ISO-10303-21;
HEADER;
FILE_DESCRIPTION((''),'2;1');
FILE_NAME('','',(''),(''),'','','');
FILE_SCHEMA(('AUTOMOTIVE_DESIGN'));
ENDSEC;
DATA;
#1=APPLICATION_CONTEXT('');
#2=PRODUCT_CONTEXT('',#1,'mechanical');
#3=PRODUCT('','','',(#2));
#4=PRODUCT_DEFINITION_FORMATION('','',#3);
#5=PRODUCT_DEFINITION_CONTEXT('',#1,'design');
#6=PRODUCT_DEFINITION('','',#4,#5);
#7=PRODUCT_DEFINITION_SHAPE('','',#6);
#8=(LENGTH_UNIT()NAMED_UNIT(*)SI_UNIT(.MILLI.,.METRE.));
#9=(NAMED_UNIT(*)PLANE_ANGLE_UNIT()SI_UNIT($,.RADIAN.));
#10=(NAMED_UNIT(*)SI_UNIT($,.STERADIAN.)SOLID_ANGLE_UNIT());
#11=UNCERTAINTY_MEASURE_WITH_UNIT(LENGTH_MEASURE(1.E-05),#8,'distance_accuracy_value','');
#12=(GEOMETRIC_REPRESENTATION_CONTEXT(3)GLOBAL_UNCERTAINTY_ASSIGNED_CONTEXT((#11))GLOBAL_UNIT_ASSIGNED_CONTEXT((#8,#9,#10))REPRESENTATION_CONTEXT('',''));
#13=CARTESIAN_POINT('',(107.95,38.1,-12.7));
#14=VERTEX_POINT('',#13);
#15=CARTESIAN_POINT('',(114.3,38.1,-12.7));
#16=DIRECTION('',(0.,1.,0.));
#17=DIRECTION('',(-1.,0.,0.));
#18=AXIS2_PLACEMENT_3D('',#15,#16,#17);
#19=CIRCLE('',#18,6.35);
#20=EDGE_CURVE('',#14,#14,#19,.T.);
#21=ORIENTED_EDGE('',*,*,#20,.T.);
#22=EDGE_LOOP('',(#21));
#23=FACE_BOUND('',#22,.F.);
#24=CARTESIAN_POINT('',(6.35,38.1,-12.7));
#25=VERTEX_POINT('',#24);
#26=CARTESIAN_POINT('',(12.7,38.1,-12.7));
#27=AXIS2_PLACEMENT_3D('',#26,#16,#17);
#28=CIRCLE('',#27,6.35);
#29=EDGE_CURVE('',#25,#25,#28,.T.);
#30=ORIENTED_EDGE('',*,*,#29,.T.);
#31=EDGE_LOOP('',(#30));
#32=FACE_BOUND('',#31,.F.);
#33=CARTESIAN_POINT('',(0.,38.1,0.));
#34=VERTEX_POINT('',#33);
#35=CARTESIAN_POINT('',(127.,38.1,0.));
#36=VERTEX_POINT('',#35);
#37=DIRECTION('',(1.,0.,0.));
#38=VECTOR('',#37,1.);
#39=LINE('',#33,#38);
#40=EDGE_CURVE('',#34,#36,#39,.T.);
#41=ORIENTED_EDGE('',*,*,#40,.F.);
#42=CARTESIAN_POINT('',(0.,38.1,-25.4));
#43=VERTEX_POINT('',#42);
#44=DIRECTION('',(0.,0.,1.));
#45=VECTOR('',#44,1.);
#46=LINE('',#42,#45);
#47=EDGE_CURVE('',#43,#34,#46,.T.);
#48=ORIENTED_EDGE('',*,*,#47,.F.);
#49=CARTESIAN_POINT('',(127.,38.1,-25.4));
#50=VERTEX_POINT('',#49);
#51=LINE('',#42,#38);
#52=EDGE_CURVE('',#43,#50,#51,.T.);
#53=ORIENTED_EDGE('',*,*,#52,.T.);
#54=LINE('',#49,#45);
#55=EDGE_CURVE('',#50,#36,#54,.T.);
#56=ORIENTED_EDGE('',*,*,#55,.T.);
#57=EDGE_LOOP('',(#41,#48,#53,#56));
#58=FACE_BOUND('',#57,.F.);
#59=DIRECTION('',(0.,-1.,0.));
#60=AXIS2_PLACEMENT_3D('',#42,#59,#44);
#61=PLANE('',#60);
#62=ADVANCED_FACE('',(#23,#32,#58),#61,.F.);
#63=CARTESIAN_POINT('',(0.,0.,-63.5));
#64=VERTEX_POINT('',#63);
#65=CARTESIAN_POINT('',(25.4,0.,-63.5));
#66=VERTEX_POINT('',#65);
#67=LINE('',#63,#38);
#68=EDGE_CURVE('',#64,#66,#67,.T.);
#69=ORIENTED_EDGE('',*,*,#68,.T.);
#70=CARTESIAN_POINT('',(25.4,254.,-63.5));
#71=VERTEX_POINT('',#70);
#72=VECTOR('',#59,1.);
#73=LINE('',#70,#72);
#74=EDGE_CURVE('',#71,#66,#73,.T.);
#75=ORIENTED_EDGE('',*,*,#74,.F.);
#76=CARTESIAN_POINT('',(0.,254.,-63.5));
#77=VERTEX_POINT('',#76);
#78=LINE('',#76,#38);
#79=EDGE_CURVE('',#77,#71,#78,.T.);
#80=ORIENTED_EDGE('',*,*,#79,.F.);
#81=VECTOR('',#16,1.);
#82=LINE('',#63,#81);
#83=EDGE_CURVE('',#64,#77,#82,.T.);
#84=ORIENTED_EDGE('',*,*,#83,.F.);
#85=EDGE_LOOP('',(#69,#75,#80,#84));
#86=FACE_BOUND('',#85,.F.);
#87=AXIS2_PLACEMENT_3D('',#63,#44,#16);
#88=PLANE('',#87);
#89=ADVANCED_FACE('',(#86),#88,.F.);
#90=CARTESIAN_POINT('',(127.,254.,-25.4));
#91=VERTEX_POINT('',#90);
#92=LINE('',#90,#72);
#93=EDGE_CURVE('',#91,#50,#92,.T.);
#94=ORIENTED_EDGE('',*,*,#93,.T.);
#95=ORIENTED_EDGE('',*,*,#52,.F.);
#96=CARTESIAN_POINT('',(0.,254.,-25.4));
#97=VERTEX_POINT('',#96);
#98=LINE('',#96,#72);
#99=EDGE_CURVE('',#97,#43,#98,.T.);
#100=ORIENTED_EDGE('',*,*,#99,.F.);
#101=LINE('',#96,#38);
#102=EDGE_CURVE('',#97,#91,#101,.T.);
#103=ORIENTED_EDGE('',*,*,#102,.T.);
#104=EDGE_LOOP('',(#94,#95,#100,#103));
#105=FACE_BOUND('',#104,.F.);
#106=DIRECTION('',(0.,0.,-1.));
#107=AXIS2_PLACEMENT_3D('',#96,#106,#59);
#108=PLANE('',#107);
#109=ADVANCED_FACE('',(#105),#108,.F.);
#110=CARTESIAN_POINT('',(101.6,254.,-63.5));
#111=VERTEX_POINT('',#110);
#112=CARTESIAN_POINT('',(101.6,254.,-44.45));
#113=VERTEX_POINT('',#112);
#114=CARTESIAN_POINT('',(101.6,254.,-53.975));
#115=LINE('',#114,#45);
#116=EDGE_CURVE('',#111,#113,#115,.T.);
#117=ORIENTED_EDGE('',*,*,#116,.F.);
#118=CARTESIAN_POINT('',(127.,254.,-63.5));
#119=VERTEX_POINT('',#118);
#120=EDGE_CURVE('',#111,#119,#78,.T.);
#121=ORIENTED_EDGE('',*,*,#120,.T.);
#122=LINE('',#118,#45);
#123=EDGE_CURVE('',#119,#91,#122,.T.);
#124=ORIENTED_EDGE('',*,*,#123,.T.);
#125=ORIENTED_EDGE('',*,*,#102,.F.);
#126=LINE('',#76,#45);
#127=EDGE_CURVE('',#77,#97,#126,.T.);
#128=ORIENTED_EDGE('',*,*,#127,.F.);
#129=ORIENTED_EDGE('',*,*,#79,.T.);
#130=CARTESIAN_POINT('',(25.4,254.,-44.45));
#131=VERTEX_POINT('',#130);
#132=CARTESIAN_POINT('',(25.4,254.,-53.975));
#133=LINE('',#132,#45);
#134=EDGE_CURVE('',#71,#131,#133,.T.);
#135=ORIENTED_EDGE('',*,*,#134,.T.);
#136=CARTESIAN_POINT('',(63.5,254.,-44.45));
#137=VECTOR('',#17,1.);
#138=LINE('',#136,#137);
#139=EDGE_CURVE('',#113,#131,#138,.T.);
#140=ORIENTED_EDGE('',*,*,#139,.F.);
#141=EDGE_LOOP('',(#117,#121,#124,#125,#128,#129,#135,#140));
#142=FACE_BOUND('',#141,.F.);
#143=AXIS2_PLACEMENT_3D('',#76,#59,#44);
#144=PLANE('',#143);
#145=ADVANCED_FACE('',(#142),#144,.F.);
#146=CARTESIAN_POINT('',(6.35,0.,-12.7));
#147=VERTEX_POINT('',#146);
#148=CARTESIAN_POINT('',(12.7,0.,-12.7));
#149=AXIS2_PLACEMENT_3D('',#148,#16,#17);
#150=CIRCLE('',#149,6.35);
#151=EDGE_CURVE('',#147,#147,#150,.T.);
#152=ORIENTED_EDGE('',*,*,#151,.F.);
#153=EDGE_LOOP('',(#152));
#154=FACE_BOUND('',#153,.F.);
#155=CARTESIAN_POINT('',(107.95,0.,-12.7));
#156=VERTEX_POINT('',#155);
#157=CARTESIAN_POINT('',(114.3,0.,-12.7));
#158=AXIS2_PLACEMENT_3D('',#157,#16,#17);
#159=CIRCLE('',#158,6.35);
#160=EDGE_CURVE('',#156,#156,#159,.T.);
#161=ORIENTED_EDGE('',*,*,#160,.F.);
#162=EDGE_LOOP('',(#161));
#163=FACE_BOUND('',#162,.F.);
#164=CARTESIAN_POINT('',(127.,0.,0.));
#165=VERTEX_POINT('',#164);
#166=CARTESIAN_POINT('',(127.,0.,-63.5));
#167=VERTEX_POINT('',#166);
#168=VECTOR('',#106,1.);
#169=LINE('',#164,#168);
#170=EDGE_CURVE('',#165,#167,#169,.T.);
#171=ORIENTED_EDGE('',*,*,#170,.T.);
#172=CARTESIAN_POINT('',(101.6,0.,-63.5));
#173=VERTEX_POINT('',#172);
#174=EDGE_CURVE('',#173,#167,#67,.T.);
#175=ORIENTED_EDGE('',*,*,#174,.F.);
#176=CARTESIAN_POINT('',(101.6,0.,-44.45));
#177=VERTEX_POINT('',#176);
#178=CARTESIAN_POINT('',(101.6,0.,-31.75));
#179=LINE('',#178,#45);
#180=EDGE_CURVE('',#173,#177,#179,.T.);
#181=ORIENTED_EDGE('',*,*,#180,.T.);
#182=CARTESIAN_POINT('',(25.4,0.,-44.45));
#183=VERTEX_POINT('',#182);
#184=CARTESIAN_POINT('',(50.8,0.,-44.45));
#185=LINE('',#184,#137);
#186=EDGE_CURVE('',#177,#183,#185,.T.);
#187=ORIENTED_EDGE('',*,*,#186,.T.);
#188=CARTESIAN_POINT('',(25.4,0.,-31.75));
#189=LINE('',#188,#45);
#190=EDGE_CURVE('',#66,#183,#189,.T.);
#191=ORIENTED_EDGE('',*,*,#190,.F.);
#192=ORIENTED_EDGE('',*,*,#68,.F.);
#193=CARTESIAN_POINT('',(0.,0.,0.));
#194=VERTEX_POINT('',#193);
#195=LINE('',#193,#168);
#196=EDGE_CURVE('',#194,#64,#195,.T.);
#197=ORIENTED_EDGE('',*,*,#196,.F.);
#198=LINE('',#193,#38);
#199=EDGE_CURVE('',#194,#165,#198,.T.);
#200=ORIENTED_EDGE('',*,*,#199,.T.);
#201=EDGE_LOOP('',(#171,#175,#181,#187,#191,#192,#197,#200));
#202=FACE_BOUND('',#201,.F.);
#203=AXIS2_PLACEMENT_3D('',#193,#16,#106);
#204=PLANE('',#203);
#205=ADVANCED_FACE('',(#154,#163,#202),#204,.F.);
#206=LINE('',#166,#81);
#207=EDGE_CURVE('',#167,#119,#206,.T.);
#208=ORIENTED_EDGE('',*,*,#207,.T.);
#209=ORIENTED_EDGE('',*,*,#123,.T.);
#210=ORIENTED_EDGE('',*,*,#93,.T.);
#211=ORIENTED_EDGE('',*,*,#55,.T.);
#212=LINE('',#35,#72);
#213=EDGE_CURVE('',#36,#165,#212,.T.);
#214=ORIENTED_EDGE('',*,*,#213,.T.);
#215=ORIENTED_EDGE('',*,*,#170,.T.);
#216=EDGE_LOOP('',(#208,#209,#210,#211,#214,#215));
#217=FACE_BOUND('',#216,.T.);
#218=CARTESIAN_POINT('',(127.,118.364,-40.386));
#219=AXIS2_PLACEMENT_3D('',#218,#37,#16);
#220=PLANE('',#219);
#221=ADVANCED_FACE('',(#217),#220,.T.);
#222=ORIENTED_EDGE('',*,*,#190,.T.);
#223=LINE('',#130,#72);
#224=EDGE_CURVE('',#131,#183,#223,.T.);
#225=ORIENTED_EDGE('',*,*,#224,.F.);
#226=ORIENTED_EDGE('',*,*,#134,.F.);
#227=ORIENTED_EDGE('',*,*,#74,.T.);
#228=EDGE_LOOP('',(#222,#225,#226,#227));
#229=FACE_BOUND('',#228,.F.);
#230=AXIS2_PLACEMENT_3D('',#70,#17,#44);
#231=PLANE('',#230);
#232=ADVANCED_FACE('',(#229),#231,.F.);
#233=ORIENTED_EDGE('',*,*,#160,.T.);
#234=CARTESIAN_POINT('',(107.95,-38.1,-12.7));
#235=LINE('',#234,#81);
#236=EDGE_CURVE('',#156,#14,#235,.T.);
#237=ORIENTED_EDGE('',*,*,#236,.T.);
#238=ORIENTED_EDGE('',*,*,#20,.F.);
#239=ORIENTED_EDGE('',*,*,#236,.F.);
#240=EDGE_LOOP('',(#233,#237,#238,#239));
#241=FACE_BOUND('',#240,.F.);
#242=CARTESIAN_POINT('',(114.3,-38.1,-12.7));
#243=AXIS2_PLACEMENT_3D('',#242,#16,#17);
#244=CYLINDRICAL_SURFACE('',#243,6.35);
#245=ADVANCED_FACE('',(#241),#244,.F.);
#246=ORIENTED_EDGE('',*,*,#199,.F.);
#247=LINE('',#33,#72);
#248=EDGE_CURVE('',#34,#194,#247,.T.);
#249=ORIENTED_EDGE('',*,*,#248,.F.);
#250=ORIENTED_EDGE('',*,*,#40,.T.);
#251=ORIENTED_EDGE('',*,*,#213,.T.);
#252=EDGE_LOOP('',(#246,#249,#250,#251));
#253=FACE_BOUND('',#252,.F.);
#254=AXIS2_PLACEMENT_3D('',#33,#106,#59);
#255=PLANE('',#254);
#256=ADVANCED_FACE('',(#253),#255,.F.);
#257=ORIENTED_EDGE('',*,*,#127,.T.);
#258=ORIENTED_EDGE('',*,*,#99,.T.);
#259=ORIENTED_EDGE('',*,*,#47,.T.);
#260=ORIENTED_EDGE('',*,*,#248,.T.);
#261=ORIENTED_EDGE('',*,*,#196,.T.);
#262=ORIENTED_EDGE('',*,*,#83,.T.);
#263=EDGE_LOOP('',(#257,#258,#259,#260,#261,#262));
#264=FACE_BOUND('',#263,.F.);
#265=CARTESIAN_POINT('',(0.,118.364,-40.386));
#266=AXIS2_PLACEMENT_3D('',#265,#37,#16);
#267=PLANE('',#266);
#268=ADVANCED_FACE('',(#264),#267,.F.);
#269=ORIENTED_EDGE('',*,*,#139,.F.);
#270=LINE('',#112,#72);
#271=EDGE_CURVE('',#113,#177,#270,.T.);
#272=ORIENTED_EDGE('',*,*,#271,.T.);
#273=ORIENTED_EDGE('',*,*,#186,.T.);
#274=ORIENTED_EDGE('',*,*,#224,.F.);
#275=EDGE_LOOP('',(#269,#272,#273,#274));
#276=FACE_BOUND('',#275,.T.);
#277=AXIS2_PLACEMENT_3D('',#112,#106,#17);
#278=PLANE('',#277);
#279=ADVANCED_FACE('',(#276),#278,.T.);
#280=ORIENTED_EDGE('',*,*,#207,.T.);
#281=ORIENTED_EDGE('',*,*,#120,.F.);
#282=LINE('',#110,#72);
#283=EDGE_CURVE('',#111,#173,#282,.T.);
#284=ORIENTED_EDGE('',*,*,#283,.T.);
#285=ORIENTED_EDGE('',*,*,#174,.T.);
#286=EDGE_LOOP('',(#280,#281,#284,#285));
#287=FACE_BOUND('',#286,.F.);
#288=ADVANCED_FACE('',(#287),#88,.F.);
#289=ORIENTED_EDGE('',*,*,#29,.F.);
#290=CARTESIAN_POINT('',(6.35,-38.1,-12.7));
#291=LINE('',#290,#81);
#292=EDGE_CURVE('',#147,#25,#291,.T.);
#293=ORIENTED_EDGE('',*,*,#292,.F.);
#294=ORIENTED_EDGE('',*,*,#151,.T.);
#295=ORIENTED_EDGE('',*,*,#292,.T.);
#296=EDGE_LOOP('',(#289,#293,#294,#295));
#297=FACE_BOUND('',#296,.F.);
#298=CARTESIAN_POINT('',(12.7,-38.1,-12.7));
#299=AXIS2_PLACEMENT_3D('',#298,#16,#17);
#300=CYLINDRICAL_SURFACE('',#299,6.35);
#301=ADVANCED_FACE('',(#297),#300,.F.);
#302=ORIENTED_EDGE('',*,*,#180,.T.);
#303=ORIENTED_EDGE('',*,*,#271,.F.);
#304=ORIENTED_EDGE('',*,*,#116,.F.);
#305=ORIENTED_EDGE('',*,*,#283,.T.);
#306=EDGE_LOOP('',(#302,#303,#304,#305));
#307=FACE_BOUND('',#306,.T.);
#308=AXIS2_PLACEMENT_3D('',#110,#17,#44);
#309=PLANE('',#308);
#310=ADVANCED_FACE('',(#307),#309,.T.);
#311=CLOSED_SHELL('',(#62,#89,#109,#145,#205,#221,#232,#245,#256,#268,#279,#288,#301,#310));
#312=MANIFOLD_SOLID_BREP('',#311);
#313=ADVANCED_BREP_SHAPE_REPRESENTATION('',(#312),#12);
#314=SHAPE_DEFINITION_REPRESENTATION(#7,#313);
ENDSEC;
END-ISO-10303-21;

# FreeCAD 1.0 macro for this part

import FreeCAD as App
import Part
import Sketcher

V = App.Vector
Q = App.Units.Quantity


def add_polygon(sketch, points):
    """Adds a closed chain of lines whose ends are joined by coincident constraints."""
    first, n = sketch.GeometryCount, len(points)
    for a, b in zip(points, points[1:] + points[:1]):
        sketch.addGeometry(Part.LineSegment(App.Vector(*a, 0), App.Vector(*b, 0)), False)
    for i in range(n):
        sketch.addConstraint(Sketcher.Constraint("Coincident", first + i, 2, first + (i + 1) % n, 1))

doc = App.newDocument("Part")
body = doc.addObject("PartDesign::Body", "Body")

# Sketch on YZ plane
sketch1 = body.newObject("Sketcher::SketchObject", "Sketch")
sketch1.AttachmentSupport = (doc.getObject("YZ_Plane"), [""])
sketch1.MapMode = "FlatFace"
add_polygon(sketch1, [(38, 0), (0, 0), (0, -64), (254, -64), (254, -25), (38, -25)])  # lines 0-5
sketch1.addConstraint([
    Sketcher.Constraint("Horizontal", 0),
    Sketcher.Constraint("Vertical", 1),
    Sketcher.Constraint("Horizontal", 2),
    Sketcher.Constraint("Vertical", 3),
    Sketcher.Constraint("Horizontal", 4),
    Sketcher.Constraint("Vertical", 5),
    Sketcher.Constraint("Coincident", 0, 2, -1, 1),
    Sketcher.Constraint("Equal", 0, 3),
    Sketcher.Constraint("DistanceX", 2, 1, 2, 2, Q("10 in")),
    Sketcher.Constraint("DistanceY", 5, 1, 5, 2, Q("1 in")),
    Sketcher.Constraint("DistanceX", 0, 2, 0, 1, Q("1.5 in")),
])
pad1 = body.newObject("PartDesign::Pad", "Pad")
pad1.Profile = sketch1
pad1.Length = Q("5 in")

# Sketch on XZ plane
sketch2 = body.newObject("Sketcher::SketchObject", "Sketch001")
sketch2.AttachmentSupport = (doc.getObject("XZ_Plane"), [""])
sketch2.MapMode = "FlatFace"
sketch2.addGeometry(Part.Circle(V(13, -13, 0), V(0, 0, 1), 6), False)
sketch2.addConstraint([
    Sketcher.Constraint("Diameter", 0, Q("0.5 in")),
    Sketcher.Constraint("DistanceX", -1, 1, 0, 3, Q("0.5 in")),
    Sketcher.Constraint("DistanceY", 0, 3, -1, 1, Q("0.5 in")),
])
doc.recompute()
hole = body.newObject("PartDesign::Hole", "Hole")
hole.Profile = sketch2
hole.ThreadType = "None"
hole.Diameter = Q("0.5 in")
hole.DepthType = "Dimension"
hole.Depth = Q("1.5 in")
hole.DrillPoint = "Flat"

# Sketch on XZ plane
sketch3 = body.newObject("Sketcher::SketchObject", "Sketch002")
sketch3.AttachmentSupport = (doc.getObject("XZ_Plane"), [""])
sketch3.MapMode = "FlatFace"
sketch3.addGeometry(Part.Circle(V(114, -13, 0), V(0, 0, 1), 6), False)
sketch3.addConstraint([
    Sketcher.Constraint("Diameter", 0, Q("0.5 in")),
    Sketcher.Constraint("DistanceX", -1, 1, 0, 3, Q("4.5 in")),
    Sketcher.Constraint("DistanceY", 0, 3, -1, 1, Q("0.5 in")),
])
doc.recompute()
hole2 = body.newObject("PartDesign::Hole", "Hole001")
hole2.Profile = sketch3
hole2.ThreadType = "None"
hole2.Diameter = Q("0.5 in")
hole2.DepthType = "Dimension"
hole2.Depth = Q("1.5 in")
hole2.DrillPoint = "Flat"

# Sketch on XZ plane
sketch4 = body.newObject("Sketcher::SketchObject", "Sketch003")
sketch4.AttachmentSupport = (doc.getObject("XZ_Plane"), [""])
sketch4.MapMode = "FlatFace"
sketch4.AttachmentOffset = App.Placement(V(0, 0, -10 * 25.4), App.Rotation())
add_polygon(sketch4, [(102, -44), (102, -64), (25, -64), (25, -44)])  # lines 0-3
sketch4.addConstraint([
    Sketcher.Constraint("Vertical", 0),
    Sketcher.Constraint("Horizontal", 1),
    Sketcher.Constraint("Vertical", 2),
    Sketcher.Constraint("Horizontal", 3),
    Sketcher.Constraint("DistanceX", 1, 2, 1, 1, Q("3 in")),
    Sketcher.Constraint("DistanceX", -1, 1, 0, 2, Q("4 in")),
    Sketcher.Constraint("DistanceY", 0, 2, 0, 1, Q("0.75 in")),
    Sketcher.Constraint("DistanceY", 0, 2, -1, 1, Q("2.5 in")),
])
pocket1 = body.newObject("PartDesign::Pocket", "Pocket")
pocket1.Profile = sketch4
pocket1.Type = "ThroughAll"
pocket1.Reversed = True

doc.recompute()
